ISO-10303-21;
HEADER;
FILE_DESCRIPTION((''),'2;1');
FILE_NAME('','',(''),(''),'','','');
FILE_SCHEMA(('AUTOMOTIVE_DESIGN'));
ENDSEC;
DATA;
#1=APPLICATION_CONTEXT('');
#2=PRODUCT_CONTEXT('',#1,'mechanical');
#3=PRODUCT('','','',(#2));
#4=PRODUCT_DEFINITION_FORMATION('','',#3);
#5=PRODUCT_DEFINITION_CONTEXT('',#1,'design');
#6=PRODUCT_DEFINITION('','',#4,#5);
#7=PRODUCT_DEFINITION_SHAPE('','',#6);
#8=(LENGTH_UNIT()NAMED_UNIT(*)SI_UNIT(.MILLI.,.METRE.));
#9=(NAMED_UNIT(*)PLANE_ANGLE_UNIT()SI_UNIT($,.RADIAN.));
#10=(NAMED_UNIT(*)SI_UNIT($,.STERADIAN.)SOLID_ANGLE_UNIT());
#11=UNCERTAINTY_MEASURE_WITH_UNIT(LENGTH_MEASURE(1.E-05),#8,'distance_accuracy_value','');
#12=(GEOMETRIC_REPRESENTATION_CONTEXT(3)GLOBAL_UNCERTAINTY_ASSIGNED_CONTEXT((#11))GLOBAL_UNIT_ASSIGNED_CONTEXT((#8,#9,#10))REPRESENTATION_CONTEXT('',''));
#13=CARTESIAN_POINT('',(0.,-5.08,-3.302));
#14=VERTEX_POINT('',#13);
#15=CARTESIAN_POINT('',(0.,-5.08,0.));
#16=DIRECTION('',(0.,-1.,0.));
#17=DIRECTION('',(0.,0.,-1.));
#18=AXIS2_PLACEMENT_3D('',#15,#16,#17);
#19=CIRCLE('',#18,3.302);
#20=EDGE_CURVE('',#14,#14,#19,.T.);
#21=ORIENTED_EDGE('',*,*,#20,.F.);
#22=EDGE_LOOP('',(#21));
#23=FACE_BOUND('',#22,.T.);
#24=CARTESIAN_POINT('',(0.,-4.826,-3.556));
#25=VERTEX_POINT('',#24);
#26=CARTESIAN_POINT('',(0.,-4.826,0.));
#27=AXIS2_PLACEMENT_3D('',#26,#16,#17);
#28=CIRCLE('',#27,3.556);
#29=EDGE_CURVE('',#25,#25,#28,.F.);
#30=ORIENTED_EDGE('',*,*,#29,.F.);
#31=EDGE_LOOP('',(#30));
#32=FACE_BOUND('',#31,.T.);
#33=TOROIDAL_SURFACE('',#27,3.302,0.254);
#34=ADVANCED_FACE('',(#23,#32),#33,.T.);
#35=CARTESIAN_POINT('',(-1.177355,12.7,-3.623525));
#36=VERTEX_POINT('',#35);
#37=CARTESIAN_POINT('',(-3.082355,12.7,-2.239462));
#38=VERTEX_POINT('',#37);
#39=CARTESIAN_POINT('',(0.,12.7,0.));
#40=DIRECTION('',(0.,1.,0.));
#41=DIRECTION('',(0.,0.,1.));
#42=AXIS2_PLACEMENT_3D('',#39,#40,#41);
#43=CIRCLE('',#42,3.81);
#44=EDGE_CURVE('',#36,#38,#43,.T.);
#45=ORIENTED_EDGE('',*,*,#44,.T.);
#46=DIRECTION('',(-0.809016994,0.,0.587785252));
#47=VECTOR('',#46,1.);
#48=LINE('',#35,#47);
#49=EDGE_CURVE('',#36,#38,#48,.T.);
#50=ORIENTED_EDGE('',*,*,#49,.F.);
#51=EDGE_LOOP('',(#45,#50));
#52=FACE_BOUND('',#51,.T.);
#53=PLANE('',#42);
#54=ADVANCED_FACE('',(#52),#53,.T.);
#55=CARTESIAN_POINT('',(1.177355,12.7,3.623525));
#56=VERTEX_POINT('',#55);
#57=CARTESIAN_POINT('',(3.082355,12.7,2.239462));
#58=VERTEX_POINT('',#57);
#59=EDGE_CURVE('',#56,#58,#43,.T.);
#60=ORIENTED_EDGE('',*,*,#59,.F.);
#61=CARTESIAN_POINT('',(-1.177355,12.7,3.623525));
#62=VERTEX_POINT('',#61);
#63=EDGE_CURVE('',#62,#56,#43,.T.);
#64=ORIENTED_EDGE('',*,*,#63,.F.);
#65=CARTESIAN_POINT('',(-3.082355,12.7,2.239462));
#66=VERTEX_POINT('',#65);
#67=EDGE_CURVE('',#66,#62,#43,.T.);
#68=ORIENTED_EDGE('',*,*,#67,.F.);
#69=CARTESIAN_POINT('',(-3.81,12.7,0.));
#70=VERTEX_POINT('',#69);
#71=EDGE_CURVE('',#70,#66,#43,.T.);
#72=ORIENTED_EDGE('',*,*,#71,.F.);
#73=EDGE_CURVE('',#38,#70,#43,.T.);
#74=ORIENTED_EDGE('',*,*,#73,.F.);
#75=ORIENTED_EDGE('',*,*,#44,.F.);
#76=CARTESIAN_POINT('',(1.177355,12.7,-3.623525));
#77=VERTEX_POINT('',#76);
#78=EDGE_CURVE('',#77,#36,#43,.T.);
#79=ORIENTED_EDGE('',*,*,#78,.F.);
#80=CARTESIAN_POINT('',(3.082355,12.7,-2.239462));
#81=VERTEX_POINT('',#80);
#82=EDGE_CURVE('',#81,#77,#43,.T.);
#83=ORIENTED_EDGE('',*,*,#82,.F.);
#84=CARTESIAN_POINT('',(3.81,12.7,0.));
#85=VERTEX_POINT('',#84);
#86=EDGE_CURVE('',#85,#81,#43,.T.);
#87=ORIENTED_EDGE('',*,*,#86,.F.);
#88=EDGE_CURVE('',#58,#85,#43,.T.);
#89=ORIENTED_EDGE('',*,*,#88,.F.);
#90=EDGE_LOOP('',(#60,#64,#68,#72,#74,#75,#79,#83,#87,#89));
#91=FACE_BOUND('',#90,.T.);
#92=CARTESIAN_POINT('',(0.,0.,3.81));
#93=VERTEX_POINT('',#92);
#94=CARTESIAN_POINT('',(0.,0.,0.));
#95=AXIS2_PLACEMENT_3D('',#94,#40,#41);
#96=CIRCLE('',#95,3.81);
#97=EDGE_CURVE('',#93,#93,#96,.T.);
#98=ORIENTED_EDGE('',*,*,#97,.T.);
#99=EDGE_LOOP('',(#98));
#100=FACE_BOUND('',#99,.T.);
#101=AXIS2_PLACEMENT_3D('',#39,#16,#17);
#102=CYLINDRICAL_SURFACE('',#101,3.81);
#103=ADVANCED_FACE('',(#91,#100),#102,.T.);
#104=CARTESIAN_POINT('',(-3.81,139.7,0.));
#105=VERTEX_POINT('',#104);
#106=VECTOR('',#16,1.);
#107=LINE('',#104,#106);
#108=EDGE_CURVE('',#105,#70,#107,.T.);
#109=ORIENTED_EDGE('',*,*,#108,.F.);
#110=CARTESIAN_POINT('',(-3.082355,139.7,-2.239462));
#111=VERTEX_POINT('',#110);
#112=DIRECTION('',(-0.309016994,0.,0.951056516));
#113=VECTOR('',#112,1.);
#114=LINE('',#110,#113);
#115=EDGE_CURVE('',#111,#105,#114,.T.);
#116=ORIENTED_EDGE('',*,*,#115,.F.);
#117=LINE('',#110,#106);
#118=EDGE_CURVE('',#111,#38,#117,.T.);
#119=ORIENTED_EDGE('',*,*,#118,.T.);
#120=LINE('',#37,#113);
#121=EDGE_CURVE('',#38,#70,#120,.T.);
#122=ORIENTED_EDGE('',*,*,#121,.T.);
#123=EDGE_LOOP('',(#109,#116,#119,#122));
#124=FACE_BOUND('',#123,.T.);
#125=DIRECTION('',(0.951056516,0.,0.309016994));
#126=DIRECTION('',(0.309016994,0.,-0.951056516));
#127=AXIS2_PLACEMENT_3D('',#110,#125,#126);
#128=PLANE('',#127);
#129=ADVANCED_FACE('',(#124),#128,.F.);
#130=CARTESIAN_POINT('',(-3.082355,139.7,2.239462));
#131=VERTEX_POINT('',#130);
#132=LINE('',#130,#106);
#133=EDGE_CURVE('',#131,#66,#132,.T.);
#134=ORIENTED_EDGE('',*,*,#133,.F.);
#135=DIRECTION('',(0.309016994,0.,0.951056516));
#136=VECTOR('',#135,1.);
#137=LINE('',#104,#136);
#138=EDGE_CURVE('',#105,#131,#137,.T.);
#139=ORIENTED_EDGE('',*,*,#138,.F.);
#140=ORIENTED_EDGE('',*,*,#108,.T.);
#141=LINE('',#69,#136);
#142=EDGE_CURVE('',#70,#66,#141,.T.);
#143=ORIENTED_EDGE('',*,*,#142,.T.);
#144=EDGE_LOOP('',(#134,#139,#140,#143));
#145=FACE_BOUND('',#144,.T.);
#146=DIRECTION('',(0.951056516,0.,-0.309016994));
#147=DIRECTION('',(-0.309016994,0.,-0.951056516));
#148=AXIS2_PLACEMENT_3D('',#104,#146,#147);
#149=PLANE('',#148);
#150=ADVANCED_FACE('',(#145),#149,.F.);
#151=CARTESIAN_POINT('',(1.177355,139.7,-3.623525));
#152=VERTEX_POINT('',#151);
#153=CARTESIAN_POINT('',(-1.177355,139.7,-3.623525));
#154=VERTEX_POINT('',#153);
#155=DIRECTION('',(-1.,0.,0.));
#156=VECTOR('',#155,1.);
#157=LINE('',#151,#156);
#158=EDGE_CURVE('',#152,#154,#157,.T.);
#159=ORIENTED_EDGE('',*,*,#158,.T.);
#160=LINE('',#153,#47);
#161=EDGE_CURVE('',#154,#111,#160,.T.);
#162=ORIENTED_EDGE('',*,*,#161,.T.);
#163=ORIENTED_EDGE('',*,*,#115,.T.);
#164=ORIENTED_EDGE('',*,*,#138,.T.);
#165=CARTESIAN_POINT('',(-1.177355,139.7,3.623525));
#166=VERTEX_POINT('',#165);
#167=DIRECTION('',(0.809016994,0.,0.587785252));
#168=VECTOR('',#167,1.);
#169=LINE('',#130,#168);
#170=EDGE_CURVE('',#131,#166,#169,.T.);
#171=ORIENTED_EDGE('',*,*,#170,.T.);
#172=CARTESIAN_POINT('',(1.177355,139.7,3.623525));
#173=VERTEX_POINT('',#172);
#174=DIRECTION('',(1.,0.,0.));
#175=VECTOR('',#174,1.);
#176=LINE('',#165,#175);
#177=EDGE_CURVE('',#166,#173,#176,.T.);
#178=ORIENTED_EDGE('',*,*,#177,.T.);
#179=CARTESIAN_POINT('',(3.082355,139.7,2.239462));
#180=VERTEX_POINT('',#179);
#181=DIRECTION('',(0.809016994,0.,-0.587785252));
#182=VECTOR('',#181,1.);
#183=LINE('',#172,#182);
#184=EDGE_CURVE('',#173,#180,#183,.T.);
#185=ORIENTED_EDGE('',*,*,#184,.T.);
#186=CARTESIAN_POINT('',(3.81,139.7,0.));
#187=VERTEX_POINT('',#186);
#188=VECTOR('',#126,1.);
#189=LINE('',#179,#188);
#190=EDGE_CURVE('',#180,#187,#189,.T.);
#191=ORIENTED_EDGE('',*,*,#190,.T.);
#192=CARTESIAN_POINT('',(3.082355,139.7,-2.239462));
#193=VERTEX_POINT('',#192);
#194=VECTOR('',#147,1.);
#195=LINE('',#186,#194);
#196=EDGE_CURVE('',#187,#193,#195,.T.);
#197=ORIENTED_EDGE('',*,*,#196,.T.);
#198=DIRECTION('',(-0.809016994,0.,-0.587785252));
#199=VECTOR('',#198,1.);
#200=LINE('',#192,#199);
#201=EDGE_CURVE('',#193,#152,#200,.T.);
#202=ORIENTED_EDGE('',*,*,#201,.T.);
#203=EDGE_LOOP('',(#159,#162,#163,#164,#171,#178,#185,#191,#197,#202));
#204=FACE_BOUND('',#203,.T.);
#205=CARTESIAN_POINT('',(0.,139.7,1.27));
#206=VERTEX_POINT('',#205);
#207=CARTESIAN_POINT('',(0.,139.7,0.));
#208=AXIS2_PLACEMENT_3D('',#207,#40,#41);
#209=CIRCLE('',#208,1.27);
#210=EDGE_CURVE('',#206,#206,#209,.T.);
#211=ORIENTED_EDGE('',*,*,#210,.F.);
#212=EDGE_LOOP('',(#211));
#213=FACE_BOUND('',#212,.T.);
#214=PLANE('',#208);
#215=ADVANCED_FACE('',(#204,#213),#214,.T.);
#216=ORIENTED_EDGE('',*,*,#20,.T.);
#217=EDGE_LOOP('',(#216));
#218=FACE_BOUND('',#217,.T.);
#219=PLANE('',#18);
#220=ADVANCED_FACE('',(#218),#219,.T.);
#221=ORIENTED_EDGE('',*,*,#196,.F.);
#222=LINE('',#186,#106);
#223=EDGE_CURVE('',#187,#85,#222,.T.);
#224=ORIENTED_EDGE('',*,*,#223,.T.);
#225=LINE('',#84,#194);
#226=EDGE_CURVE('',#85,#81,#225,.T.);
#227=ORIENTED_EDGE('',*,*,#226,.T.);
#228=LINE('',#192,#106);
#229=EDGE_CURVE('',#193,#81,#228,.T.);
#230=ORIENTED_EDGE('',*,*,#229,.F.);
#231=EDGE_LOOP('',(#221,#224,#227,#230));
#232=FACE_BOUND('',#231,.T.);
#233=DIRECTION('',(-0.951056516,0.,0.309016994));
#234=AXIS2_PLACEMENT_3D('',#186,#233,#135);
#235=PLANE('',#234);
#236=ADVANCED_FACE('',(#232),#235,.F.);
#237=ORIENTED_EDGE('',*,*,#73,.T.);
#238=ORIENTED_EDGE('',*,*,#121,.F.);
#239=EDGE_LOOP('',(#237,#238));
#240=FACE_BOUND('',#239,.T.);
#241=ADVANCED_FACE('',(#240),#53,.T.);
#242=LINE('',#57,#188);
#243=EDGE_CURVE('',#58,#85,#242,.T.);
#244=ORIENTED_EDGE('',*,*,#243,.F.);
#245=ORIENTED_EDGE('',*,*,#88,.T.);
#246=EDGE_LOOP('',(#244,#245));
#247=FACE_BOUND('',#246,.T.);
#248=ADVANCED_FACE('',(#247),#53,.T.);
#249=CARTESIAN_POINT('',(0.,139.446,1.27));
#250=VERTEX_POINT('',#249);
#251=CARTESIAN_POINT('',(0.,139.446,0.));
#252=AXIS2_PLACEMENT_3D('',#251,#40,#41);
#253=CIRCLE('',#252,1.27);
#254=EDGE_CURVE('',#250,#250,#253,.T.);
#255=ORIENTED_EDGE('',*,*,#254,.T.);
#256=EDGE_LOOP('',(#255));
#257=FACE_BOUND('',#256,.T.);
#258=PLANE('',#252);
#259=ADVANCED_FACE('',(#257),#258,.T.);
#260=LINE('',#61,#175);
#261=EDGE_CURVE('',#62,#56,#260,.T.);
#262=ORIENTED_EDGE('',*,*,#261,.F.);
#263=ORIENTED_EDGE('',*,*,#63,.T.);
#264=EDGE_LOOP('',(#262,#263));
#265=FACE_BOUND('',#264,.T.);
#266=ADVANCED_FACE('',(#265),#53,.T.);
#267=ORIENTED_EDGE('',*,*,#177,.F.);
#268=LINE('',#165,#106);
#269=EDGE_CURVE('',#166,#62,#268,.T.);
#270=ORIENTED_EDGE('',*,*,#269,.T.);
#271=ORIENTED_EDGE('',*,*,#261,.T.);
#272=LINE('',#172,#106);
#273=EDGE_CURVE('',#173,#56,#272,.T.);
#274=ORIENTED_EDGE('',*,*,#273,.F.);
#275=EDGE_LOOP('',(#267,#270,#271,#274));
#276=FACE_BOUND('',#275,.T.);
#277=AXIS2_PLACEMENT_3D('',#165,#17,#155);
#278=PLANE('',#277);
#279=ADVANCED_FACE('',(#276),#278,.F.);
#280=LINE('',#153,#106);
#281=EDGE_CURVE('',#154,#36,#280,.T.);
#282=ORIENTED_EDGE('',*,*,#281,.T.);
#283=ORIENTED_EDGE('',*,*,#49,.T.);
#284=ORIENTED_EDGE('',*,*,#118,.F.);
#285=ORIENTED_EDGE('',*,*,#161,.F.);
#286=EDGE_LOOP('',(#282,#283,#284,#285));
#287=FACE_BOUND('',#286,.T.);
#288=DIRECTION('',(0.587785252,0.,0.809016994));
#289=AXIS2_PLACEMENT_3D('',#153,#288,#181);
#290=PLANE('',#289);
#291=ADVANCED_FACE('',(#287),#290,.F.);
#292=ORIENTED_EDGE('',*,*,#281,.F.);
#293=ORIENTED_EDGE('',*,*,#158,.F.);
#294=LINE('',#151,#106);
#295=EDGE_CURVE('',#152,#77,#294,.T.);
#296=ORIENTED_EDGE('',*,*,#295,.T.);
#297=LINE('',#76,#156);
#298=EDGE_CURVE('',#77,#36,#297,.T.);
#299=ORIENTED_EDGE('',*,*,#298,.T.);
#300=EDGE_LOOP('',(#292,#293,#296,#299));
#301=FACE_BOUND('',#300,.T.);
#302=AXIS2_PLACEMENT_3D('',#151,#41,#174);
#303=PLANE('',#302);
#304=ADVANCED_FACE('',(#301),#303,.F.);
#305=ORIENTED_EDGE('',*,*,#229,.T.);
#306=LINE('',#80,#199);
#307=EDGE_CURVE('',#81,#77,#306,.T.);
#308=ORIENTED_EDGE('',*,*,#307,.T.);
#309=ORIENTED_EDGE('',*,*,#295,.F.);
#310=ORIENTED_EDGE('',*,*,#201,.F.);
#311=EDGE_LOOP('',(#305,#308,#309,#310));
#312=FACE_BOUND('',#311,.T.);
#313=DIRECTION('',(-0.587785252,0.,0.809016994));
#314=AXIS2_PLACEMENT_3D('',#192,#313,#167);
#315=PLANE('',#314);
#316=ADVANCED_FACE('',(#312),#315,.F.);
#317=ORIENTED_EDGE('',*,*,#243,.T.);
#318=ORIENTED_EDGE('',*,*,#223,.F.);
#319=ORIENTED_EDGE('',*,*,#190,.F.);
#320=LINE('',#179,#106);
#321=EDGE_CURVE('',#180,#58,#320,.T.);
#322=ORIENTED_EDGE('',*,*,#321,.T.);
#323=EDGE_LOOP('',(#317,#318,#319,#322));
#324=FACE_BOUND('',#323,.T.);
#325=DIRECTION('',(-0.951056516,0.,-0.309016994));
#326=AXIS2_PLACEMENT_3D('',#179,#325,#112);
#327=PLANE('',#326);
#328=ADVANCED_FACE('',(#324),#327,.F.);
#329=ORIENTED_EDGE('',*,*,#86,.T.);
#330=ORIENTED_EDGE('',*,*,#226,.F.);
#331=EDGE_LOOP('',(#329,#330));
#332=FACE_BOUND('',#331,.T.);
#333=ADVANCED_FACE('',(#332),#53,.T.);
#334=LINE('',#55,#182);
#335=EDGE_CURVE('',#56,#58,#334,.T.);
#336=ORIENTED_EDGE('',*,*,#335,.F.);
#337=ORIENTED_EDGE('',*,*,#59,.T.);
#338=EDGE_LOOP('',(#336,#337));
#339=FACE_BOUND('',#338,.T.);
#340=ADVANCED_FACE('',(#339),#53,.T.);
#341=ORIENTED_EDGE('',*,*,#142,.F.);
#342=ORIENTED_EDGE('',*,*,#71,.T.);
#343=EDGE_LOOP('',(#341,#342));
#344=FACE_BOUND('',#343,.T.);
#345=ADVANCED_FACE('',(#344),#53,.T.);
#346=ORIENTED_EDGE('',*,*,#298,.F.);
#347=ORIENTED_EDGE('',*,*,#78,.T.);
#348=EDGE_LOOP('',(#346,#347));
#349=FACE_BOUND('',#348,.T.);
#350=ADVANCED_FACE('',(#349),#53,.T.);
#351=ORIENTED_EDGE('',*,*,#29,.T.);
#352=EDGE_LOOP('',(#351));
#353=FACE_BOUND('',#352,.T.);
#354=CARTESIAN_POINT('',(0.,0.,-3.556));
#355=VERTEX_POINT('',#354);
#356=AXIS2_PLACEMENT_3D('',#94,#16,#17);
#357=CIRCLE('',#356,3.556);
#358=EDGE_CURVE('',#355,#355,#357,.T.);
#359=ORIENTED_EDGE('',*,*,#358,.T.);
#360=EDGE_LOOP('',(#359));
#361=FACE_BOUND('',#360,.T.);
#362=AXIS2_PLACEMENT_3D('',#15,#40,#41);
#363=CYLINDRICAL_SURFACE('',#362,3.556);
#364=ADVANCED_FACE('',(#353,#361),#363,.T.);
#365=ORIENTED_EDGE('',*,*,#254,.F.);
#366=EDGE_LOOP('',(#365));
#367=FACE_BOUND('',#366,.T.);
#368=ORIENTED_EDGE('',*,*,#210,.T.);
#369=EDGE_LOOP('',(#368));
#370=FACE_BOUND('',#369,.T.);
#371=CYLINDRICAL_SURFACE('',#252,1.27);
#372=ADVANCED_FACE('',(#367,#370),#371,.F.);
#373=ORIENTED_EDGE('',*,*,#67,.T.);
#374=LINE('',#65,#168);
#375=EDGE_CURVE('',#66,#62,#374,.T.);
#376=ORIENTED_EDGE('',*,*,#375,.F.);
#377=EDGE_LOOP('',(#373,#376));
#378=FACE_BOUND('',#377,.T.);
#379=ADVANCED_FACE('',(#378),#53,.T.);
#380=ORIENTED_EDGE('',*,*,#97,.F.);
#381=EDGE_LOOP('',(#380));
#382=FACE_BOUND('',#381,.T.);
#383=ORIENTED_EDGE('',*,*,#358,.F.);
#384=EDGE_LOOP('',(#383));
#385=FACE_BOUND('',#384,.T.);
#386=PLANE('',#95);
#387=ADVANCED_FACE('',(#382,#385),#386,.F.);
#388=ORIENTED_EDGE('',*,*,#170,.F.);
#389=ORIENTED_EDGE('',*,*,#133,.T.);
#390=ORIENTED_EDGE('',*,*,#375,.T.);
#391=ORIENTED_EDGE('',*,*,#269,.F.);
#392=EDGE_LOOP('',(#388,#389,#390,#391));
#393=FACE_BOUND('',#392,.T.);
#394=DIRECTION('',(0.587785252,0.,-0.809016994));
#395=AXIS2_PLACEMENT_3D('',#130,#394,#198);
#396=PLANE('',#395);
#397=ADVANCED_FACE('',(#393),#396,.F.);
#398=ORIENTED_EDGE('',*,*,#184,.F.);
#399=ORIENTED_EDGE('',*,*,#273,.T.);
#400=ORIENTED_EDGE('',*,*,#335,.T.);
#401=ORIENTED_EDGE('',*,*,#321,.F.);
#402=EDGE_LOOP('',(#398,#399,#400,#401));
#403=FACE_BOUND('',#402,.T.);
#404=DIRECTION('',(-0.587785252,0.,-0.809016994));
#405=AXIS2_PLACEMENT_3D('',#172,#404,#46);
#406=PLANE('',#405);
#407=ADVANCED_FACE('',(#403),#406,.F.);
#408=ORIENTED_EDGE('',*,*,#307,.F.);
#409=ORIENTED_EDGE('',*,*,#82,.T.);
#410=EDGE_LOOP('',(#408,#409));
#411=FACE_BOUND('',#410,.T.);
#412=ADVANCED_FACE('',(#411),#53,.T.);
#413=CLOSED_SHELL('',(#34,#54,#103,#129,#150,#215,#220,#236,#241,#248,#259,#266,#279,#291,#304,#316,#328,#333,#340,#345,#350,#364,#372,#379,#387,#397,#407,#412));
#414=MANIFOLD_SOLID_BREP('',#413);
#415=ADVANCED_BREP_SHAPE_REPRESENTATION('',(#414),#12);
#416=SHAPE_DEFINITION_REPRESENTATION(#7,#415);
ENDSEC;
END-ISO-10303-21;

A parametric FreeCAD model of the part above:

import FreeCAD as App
import Part
import Sketcher
Q = App.Units.Quantity


def edges_at(feature, points):
    """Names of the edges that pass closest to the given points."""
    edges = feature.Shape.Edges
    near = lambda p: min(range(len(edges)), key=lambda i: edges[i].distToShape(Part.Vertex(*p))[0])
    return sorted({f"Edge{near(p) + 1}" for p in points})

doc = App.newDocument("Part")
body = doc.addObject("PartDesign::Body", "Body")

# Sketch on XZ plane
sketch1 = body.newObject("Sketcher::SketchObject", "Sketch")
sketch1.AttachmentSupport = (doc.getObject("XZ_Plane"), [""])
sketch1.MapMode = "FlatFace"
sketch1.addGeometry(Part.Circle(App.Vector(0, 0, 0), App.Vector(0, 0, 1), 3.81), False)
sketch1.addConstraint([
    Sketcher.Constraint("Coincident", 0, 3, -1, 1),
    Sketcher.Constraint("Diameter", 0, Q("0.3 in")),
])
pad1 = body.newObject("PartDesign::Pad", "Pad")
pad1.Profile = sketch1
pad1.Length = Q("0.5 in")
pad1.Reversed = True

# Sketch on XZ plane
sketch2 = body.newObject("Sketcher::SketchObject", "Sketch001")
sketch2.AttachmentSupport = (doc.getObject("XZ_Plane"), [""])
sketch2.MapMode = "FlatFace"
sketch2.AttachmentOffset = App.Placement(App.Vector(0, 0, -0.5 * 25.4), App.Rotation())
sketch2.addGeometry([
    Part.LineSegment(App.Vector(3.81, 0, 0), App.Vector(3.082355, -2.239462, 0)),  # 0
    Part.LineSegment(App.Vector(3.082355, -2.239462, 0), App.Vector(1.177355, -3.623525, 0)),  # 1
    Part.LineSegment(App.Vector(1.177355, -3.623525, 0), App.Vector(-1.177355, -3.623525, 0)),  # 2
    Part.LineSegment(App.Vector(-1.177355, -3.623525, 0), App.Vector(-3.082355, -2.239462, 0)),  # 3
    Part.LineSegment(App.Vector(-3.082355, -2.239462, 0), App.Vector(-3.81, 0, 0)),  # 4
    Part.LineSegment(App.Vector(-3.81, 0, 0), App.Vector(-3.082355, 2.239462, 0)),  # 5
    Part.LineSegment(App.Vector(-3.082355, 2.239462, 0), App.Vector(-1.177355, 3.623525, 0)),  # 6
    Part.LineSegment(App.Vector(-1.177355, 3.623525, 0), App.Vector(1.177355, 3.623525, 0)),  # 7
    Part.LineSegment(App.Vector(1.177355, 3.623525, 0), App.Vector(3.082355, 2.239462, 0)),  # 8
    Part.LineSegment(App.Vector(3.082355, 2.239462, 0), App.Vector(3.81, 0, 0)),  # 9
], False)
sketch2.addConstraint([
    Sketcher.Constraint("Coincident", 0, 2, 1, 1),
    Sketcher.Constraint("Coincident", 1, 2, 2, 1),
    Sketcher.Constraint("Coincident", 2, 2, 3, 1),
    Sketcher.Constraint("Coincident", 3, 2, 4, 1),
    Sketcher.Constraint("Coincident", 4, 2, 5, 1),
    Sketcher.Constraint("Coincident", 5, 2, 6, 1),
    Sketcher.Constraint("Coincident", 6, 2, 7, 1),
    Sketcher.Constraint("Coincident", 7, 2, 8, 1),
    Sketcher.Constraint("Coincident", 8, 2, 9, 1),
    Sketcher.Constraint("Coincident", 9, 2, 0, 1),
    Sketcher.Constraint("Horizontal", 2),
    Sketcher.Constraint("Horizontal", 7),
    Sketcher.Constraint("Symmetric", 0, 2, 5, 2, -1, 1),
    Sketcher.Constraint("Symmetric", 1, 2, 6, 2, -1, 1),
    Sketcher.Constraint("Symmetric", 3, 2, 8, 2, -1, 1),
    Sketcher.Constraint("Symmetric", 4, 2, 9, 2, -1, 1),
    Sketcher.Constraint("Symmetric", 0, 2, 3, 2, -2),
    Sketcher.Constraint("PointOnObject", 4, 2, -1),
    Sketcher.Constraint("Parallel", 3, 8),
    Sketcher.Constraint("Vertical", 2, 2, 6, 2),
    Sketcher.Constraint("Equal", 0, 1),
    Sketcher.Constraint("Angle", 0, Q("-108 deg")),
    Sketcher.Constraint("Angle", 1, Q("-144 deg")),
    Sketcher.Constraint("DistanceX", 4, 2, -1, 1, Q("0.15 in")),
    Sketcher.Constraint("DistanceX", 1, 2, 0, 2, Q("0.075 in")),
])
pad2 = body.newObject("PartDesign::Pad", "Pad001")
pad2.Profile = sketch2
pad2.Length = Q("5 in")
pad2.Reversed = True

# Sketch on XZ plane
sketch3 = body.newObject("Sketcher::SketchObject", "Sketch002")
sketch3.AttachmentSupport = (doc.getObject("XZ_Plane"), [""])
sketch3.MapMode = "FlatFace"
sketch3.addGeometry(Part.Circle(App.Vector(0, 0, 0), App.Vector(0, 0, 1), 3.556), False)
sketch3.addConstraint([
    Sketcher.Constraint("Coincident", 0, 3, -1, 1),
    Sketcher.Constraint("Diameter", 0, Q("0.28 in")),
])
pad3 = body.newObject("PartDesign::Pad", "Pad002")
pad3.Profile = sketch3
pad3.Length = Q("0.2 in")
doc.recompute()

fillet = body.newObject("PartDesign::Fillet", "Fillet")
fillet.Base = (pad3, edges_at(pad3, [(0, -5.08, 3.556)]))
fillet.Radius = Q("0.01 in")

# Sketch on XZ plane
sketch4 = body.newObject("Sketcher::SketchObject", "Sketch003")
sketch4.AttachmentSupport = (doc.getObject("XZ_Plane"), [""])
sketch4.MapMode = "FlatFace"
sketch4.AttachmentOffset = App.Placement(App.Vector(0, 0, -5.5 * 25.4), App.Rotation())
sketch4.addGeometry(Part.Circle(App.Vector(0, 0, 0), App.Vector(0, 0, 1), 1.27), False)
sketch4.addConstraint([
    Sketcher.Constraint("Coincident", 0, 3, -1, 1),
    Sketcher.Constraint("Diameter", 0, Q("0.1 in")),
])
pocket1 = body.newObject("PartDesign::Pocket", "Pocket")
pocket1.Profile = sketch4
pocket1.Length = Q("0.01 in")
pocket1.Reversed = True

doc.recompute()
